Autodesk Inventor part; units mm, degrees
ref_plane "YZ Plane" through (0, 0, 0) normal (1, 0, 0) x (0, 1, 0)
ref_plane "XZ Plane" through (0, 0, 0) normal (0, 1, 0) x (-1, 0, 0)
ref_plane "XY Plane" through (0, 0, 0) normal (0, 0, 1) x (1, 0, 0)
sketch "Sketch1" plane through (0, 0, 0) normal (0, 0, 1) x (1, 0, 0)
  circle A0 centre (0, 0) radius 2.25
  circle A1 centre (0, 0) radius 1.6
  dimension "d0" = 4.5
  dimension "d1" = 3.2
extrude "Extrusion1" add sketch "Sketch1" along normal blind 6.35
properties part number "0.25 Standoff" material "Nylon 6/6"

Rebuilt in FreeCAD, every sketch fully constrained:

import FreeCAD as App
import Part
import Sketcher
from FreeCAD import Vector
Q = App.Units.Quantity

doc = App.newDocument("Part")
body = doc.addObject("PartDesign::Body", "Body")

sketch1 = doc.addObject("Sketcher::SketchObject", "Sketch")
body.addObject(sketch1)
sketch1.AttachmentSupport = (doc.XY_Plane, [""])
sketch1.MapMode = "FlatFace"
sketch1.addGeometry(Part.Circle(Vector(0, 0, 0), Vector(0, 0, 1), 2.2), False)
sketch1.addGeometry(Part.Circle(Vector(0, 0, 0), Vector(0, 0, 1), 1.6), False)
sketch1.addConstraint(Sketcher.Constraint("Coincident", 0, 3, -1, 1))
sketch1.addConstraint(Sketcher.Constraint("Coincident", 1, 3, -1, 1))
sketch1.addConstraint(Sketcher.Constraint("Diameter", 0, Q("4.5 mm")))
sketch1.addConstraint(Sketcher.Constraint("Diameter", 1, Q("3.2 mm")))
pad1 = doc.addObject("PartDesign::Pad", "Pad")
body.addObject(pad1)
pad1.Profile = sketch1
pad1.Length = 6.35

doc.recompute()
